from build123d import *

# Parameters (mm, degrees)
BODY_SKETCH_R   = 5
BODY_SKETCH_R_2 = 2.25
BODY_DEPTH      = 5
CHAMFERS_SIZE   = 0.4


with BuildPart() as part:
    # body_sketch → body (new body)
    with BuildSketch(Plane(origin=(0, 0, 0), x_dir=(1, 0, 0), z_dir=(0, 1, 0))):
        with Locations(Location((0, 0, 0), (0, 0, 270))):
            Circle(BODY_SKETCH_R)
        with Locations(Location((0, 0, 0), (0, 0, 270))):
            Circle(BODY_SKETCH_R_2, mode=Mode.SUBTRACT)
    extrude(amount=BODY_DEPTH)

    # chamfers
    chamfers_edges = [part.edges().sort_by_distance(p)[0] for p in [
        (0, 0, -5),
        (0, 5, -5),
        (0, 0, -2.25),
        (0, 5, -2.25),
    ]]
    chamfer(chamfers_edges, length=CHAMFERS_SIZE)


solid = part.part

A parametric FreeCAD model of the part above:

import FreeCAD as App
import Part
import Sketcher
from FreeCAD import Vector


def edges_at(feature, points):
    """Names of the edges that pass closest to the given points."""
    edges = feature.Shape.Edges
    near = lambda p: min(range(len(edges)), key=lambda i: edges[i].distToShape(Part.Vertex(*p))[0])
    return sorted({f"Edge{near(p) + 1}" for p in points})

doc = App.newDocument("Part")
body = doc.addObject("PartDesign::Body", "Body")

sketch1 = doc.addObject("Sketcher::SketchObject", "Sketch")
body.addObject(sketch1)
sketch1.AttachmentSupport = (doc.XZ_Plane, [""])
sketch1.MapMode = "FlatFace"
sketch1.addGeometry([
    Part.Circle(Vector(0, 0, 0), Vector(0, 0, 1), 5),
    Part.Circle(Vector(0, 0, 0), Vector(0, 0, 1), 2.2),
], False)
sketch1.addConstraint([
    Sketcher.Constraint("Coincident", 0, 3, -1, 1),
    Sketcher.Constraint("Coincident", 1, 3, -1, 1),
    Sketcher.Constraint("Diameter", 0, 10.0),
    Sketcher.Constraint("Diameter", 1, 4.5),
])
pad1 = doc.addObject("PartDesign::Pad", "Pad")
body.addObject(pad1)
pad1.Profile = sketch1
pad1.Length = 5
pad1.Reversed = True
doc.recompute()

chamfer = doc.addObject("PartDesign::Chamfer", "Chamfer")
body.addObject(chamfer)
chamfer.Base = (pad1, edges_at(pad1, [
    (0, 0, -5),
    (0, 5, -5),
    (0, 0, -2.25),
    (0, 5, -2.25),
]))
chamfer.Size = 0.4

doc.recompute()
